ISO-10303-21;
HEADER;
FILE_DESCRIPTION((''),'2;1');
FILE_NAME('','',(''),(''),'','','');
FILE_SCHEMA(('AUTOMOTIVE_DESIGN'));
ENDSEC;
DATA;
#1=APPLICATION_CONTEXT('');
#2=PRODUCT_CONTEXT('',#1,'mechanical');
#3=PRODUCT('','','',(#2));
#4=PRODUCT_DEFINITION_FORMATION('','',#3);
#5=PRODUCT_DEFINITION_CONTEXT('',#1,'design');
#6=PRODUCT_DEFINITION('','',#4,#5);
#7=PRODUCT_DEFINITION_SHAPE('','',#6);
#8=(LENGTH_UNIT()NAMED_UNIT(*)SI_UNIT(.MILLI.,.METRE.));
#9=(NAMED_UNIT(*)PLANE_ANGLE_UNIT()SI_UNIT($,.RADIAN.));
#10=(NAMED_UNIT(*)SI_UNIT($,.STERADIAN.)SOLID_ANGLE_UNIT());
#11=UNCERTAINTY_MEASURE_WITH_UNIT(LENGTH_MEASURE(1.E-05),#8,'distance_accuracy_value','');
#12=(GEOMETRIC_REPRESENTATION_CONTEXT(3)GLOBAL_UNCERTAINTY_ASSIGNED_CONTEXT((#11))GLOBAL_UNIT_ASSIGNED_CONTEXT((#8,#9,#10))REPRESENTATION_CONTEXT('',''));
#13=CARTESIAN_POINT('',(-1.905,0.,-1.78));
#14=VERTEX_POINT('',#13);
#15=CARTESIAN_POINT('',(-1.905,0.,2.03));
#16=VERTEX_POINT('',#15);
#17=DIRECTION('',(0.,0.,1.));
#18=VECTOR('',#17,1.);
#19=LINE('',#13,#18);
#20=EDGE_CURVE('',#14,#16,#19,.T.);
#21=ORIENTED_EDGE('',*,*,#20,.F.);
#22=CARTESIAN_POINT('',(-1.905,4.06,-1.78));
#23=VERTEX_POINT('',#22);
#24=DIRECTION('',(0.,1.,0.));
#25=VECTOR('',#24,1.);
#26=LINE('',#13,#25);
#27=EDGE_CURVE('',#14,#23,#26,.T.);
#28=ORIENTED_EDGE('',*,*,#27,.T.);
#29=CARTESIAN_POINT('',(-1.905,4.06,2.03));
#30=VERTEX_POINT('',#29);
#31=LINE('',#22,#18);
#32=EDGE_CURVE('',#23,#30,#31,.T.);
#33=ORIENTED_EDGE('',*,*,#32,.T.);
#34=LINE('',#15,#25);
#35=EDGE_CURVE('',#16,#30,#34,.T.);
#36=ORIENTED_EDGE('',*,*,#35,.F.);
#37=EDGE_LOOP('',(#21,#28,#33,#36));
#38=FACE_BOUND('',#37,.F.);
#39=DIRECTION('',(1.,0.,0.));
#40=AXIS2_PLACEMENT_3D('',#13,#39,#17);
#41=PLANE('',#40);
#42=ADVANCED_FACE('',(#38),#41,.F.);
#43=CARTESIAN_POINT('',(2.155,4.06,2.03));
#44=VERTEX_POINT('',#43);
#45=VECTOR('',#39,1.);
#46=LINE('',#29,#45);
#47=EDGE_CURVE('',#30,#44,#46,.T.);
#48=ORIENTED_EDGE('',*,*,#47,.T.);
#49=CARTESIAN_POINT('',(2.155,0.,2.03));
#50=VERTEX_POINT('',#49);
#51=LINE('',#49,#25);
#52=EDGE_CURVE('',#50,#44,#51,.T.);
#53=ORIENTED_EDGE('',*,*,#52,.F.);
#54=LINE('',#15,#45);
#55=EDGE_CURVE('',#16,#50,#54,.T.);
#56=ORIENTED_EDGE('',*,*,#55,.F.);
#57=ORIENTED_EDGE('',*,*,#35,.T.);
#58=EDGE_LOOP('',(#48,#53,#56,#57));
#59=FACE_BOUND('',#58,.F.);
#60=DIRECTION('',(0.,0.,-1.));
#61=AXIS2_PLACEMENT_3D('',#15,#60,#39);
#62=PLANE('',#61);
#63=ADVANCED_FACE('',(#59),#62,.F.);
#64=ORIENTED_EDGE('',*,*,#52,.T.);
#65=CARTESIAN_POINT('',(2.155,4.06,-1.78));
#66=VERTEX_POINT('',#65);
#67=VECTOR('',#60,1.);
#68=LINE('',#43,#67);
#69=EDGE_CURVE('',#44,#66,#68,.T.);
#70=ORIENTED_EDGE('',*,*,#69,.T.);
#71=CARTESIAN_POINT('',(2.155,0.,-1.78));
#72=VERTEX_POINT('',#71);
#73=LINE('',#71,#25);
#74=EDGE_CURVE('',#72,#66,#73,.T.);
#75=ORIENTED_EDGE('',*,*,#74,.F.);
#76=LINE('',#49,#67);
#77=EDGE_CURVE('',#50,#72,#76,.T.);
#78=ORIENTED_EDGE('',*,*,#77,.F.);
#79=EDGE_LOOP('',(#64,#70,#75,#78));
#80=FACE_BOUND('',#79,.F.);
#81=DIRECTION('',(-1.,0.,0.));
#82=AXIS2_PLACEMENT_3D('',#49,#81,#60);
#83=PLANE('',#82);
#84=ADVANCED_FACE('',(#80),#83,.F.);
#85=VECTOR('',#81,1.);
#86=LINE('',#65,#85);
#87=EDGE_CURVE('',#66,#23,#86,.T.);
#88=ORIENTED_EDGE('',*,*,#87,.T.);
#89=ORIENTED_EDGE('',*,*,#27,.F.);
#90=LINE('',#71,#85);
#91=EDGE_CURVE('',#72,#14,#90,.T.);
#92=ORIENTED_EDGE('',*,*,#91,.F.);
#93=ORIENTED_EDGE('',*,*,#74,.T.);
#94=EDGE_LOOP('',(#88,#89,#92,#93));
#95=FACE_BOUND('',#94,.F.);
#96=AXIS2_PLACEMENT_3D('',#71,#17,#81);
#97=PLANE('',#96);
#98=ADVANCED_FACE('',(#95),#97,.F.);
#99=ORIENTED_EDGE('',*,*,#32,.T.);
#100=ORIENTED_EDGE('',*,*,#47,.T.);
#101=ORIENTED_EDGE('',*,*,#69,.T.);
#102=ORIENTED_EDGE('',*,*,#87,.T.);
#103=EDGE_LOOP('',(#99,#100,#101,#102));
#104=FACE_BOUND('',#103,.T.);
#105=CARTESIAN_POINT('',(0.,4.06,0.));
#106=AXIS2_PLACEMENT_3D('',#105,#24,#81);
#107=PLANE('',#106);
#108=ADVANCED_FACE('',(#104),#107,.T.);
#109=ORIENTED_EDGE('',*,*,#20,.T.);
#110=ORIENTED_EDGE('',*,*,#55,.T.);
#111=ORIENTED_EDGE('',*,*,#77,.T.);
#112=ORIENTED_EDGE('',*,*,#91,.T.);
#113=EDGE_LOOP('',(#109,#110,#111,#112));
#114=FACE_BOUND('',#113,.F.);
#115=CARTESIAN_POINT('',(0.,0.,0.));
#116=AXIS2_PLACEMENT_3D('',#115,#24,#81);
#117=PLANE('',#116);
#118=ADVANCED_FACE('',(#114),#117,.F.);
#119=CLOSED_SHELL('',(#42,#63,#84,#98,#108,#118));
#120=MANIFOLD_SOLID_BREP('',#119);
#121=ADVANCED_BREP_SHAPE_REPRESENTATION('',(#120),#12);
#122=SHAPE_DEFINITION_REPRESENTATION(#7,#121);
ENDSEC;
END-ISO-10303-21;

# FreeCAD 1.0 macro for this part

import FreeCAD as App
import Part
import Sketcher

V = App.Vector
Q = App.Units.Quantity

doc = App.newDocument("Part")
params = doc.addObject("Spreadsheet::Sheet", "Params")
for row, (alias, value) in enumerate([
    ("sketch1_height", "0.15 in"),
    ("pad1_length", "4.06 mm"),
], start=1):
    params.set(f"A{row}", alias)
    params.set(f"B{row}", "=" + value)
    params.setAlias(f"B{row}", alias)

body = doc.addObject("PartDesign::Body", "Body")

# Sketch on XZ plane
sketch1 = doc.addObject("Sketcher::SketchObject", "Sketch")
body.addObject(sketch1)
sketch1.AttachmentSupport = (doc.XZ_Plane, [""])
sketch1.MapMode = "FlatFace"
sketch1.addGeometry([
    Part.LineSegment(V(-1.9, -1.8, 0), V(-1.9, 2, 0)),
    Part.LineSegment(V(-1.9, 2, 0), V(2.2, 2, 0)),
    Part.LineSegment(V(2.2, 2, 0), V(2.2, -1.8, 0)),
    Part.LineSegment(V(2.2, -1.8, 0), V(-1.9, -1.8, 0)),
], False)
sketch1.addConstraint([
    Sketcher.Constraint("Coincident", 0, 2, 1, 1),
    Sketcher.Constraint("Coincident", 1, 2, 2, 1),
    Sketcher.Constraint("Coincident", 2, 2, 3, 1),
    Sketcher.Constraint("Coincident", 3, 2, 0, 1),
    Sketcher.Constraint("Vertical", 0),
    Sketcher.Constraint("Horizontal", 1),
    Sketcher.Constraint("Vertical", 2),
    Sketcher.Constraint("Horizontal", 3),
    Sketcher.Constraint("DistanceY", 0, 1, 0, 2, Q("0.15 in")),
    Sketcher.Constraint("DistanceX", 0, 2, -1, 1, Q("0.075 in")),
    Sketcher.Constraint("DistanceX", 1, 1, 1, 2, Q("4.06 mm")),
    Sketcher.Constraint("DistanceY", -1, 1, 0, 2, Q("2.03 mm")),
])
sketch1.setExpression("Constraints[8]", "Params.sketch1_height")
pad1 = doc.addObject("PartDesign::Pad", "Pad")
body.addObject(pad1)
pad1.Profile = sketch1
pad1.setExpression("Length", "Params.pad1_length")
pad1.Reversed = True

doc.recompute()
